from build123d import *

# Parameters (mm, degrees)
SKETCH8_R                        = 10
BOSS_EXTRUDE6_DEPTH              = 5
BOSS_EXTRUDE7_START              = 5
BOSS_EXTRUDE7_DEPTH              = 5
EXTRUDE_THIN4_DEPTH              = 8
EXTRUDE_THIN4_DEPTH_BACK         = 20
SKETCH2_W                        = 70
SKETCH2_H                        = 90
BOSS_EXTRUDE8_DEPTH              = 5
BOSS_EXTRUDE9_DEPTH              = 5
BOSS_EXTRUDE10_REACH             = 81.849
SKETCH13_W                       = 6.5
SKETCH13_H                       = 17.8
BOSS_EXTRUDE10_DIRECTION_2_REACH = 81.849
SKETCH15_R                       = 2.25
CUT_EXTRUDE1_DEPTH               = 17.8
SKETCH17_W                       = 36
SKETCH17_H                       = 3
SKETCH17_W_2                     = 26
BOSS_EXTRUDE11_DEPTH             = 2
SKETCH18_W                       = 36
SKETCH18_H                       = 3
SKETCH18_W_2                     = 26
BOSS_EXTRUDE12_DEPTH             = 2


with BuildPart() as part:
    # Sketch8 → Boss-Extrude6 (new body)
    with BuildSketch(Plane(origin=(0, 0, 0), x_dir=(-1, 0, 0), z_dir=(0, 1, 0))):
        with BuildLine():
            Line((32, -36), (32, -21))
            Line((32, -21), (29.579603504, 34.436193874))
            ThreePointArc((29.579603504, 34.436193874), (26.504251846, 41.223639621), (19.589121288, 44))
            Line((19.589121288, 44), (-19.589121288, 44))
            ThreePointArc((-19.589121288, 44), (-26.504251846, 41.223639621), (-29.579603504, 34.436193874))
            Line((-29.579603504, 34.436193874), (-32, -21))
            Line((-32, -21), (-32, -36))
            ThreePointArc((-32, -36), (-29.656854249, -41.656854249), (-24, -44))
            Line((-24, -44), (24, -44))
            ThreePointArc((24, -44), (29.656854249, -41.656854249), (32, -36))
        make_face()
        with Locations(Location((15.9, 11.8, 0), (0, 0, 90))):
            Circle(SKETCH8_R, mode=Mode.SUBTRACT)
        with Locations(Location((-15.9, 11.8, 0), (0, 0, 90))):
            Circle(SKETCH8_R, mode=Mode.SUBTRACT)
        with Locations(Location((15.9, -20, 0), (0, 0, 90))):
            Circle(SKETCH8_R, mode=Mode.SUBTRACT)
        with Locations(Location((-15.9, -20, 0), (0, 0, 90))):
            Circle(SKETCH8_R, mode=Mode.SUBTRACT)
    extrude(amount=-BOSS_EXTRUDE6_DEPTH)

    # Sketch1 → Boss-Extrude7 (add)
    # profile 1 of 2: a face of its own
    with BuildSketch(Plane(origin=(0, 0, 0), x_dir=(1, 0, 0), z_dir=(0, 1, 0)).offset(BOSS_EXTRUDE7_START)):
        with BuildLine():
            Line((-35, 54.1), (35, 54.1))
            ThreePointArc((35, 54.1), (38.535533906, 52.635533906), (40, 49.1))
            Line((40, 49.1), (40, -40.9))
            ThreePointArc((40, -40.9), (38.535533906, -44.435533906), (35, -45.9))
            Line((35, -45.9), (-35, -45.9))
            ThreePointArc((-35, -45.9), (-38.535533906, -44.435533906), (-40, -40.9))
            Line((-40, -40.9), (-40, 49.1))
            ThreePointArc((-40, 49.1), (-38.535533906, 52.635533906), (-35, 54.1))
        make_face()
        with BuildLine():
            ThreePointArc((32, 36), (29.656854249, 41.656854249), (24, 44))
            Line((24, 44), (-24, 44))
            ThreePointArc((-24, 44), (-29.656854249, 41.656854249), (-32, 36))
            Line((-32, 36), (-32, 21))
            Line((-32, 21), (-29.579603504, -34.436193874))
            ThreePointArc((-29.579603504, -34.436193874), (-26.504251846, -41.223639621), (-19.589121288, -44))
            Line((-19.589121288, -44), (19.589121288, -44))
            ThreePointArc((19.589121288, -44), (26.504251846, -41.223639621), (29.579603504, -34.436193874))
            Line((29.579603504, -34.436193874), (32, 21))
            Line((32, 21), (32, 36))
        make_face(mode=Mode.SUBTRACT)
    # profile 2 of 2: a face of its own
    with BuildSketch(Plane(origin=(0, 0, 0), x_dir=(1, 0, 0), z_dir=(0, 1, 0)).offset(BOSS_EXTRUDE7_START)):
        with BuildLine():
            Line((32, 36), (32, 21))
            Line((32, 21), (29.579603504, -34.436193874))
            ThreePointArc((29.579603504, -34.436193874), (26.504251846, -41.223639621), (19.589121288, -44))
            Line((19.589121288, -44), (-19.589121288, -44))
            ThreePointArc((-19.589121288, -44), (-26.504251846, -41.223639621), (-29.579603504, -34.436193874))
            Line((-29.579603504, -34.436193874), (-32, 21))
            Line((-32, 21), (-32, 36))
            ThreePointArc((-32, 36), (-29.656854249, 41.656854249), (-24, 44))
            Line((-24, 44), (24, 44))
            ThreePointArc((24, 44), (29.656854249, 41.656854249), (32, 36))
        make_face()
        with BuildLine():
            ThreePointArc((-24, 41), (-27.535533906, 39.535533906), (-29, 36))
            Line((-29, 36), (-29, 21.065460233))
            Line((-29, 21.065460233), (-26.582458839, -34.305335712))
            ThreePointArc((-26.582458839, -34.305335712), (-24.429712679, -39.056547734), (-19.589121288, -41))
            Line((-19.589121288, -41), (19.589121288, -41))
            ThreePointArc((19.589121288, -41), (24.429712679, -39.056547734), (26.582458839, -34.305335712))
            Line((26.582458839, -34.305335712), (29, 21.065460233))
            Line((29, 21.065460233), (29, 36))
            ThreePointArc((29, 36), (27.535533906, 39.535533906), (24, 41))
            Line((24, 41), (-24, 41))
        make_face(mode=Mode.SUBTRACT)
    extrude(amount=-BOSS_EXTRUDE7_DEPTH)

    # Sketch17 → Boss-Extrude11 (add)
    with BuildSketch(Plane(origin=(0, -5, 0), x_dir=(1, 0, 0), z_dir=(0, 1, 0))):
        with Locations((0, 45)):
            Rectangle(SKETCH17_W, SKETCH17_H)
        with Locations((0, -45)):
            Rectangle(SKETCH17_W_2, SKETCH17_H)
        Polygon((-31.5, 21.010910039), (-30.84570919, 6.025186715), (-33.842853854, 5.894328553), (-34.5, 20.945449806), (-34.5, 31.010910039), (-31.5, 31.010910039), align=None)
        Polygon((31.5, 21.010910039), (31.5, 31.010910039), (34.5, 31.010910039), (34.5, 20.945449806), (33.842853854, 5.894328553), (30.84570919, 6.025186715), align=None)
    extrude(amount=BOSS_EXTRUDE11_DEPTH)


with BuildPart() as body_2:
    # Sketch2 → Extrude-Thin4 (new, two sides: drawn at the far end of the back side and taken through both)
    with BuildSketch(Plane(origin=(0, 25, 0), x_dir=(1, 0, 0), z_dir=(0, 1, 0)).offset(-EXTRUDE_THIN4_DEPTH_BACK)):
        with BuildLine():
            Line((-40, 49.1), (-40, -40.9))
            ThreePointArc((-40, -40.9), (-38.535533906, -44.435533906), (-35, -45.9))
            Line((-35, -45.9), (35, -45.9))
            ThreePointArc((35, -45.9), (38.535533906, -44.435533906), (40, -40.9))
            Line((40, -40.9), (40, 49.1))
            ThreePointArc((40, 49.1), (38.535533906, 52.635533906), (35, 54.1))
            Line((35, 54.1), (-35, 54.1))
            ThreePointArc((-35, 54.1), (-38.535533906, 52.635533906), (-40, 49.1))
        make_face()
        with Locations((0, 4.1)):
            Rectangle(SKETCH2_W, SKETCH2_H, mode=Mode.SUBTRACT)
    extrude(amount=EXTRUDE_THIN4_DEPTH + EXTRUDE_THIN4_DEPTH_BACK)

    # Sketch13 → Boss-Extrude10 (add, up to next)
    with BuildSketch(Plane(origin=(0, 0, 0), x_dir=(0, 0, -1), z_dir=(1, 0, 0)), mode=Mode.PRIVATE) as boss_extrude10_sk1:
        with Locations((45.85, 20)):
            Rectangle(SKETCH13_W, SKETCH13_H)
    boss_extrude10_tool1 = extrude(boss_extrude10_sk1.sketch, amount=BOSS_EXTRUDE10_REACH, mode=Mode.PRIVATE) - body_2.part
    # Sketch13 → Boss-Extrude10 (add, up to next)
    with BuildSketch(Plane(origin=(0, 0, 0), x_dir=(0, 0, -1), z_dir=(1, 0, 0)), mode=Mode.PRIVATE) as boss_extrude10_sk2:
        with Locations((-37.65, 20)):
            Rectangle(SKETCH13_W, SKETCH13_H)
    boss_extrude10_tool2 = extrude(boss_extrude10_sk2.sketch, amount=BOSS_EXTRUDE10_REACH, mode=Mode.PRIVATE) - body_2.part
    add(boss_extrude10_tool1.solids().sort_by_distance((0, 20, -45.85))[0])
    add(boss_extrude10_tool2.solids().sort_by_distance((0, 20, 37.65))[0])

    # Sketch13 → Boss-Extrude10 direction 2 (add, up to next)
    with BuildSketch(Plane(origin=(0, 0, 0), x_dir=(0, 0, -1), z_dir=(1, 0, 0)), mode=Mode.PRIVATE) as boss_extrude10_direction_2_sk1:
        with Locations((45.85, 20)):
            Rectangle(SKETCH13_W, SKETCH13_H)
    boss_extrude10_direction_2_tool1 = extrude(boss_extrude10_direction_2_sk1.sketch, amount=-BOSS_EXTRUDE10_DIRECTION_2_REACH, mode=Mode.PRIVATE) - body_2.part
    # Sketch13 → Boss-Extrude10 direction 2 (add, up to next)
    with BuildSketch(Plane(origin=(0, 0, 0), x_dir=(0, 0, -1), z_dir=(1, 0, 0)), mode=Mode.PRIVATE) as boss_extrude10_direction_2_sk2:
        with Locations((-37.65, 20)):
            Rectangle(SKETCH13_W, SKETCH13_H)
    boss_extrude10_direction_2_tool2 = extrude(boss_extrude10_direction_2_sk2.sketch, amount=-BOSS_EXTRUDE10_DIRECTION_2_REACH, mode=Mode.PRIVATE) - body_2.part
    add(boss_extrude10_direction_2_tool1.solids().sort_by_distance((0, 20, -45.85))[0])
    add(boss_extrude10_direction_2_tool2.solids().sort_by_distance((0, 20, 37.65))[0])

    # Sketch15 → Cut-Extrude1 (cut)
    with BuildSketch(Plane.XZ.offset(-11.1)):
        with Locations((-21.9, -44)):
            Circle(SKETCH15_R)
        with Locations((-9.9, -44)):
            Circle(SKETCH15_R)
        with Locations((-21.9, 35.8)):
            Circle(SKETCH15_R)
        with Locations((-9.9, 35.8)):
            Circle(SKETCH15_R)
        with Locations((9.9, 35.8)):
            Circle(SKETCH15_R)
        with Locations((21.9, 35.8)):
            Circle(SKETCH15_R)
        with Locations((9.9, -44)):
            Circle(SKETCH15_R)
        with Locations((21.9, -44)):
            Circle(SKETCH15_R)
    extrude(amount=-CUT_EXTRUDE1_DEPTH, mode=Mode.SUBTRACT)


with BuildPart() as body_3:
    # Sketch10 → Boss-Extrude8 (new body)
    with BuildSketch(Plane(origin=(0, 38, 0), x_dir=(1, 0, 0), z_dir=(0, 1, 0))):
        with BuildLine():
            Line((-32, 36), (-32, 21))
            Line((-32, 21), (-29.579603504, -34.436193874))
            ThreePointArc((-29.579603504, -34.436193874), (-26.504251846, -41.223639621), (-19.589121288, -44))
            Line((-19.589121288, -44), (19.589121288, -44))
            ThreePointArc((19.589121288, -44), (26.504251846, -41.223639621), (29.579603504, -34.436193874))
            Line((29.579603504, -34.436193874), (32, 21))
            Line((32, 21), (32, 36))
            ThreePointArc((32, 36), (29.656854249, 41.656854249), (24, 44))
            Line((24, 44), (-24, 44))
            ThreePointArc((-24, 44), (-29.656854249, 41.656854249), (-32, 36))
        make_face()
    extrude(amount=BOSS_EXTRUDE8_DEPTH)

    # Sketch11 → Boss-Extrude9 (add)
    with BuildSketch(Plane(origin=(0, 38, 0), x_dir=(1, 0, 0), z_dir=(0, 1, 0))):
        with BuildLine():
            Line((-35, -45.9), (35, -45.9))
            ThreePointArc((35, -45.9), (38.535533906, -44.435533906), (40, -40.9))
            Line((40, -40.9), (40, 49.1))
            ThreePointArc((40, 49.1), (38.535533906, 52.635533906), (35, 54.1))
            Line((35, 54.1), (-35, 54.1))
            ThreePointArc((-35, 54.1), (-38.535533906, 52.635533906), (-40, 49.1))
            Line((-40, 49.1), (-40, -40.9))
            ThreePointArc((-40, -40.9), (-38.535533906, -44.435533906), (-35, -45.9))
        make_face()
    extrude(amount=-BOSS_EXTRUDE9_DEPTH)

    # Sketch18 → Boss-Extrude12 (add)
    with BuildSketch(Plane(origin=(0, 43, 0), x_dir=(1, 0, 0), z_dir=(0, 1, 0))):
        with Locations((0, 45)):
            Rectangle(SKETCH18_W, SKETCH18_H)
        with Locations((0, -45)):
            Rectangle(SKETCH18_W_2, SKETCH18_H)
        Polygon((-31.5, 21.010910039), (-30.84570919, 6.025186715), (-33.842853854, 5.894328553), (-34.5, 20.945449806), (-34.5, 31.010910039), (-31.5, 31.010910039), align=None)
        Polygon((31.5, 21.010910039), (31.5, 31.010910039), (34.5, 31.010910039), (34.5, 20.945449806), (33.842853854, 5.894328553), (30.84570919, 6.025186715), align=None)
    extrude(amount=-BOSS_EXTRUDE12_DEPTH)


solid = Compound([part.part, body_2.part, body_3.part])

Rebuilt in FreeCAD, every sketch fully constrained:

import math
import FreeCAD as App
import Part
import Sketcher

V = App.Vector
Q = App.Units.Quantity

doc = App.newDocument("Part")
params = doc.addObject("Spreadsheet::Sheet", "Params")
for row, (alias, value) in enumerate([
    ("sketch1_diameter", "20 mm"),
    ("sketch1_radius", "8 mm"),
    ("sketch1_width", "48 mm"),
    ("sketch1_height", "15 mm"),
    ("pad1_length", "5 mm"),
    ("sketch2_radius", "5 mm"),
    ("sketch2_radius2", "7 mm"),
    ("sketch2_width", "70 mm"),
    ("sketch2_width2", "48 mm"),
    ("sketch2_height", "90 mm"),
    ("pad2_length", "5 mm"),
    ("sketch3_width", "36 mm"),
    ("sketch3_width2", "26 mm"),
    ("sketch3_width3", "3 mm"),
    ("sketch3_height", "10 mm"),
    ("sketch3_length", "15 mm"),
    ("pad3_length", "2 mm"),
    ("sketch4_radius", "5 mm"),
    ("sketch4_width", "70 mm"),
    ("sketch4_height", "90 mm"),
    ("pad4_length", "8 mm"),
    ("pad4_length2", "20 mm"),
    ("sketch5_width", "17.8 mm"),
    ("sketch5_height", "6.5 mm"),
    ("sketch6_width", "17.8 mm"),
    ("sketch6_height", "6.5 mm"),
    ("sketch7_width", "17.8 mm"),
    ("sketch7_height", "6.5 mm"),
    ("sketch8_width", "17.8 mm"),
    ("sketch8_height", "6.5 mm"),
    ("sketch9_diameter", "4.5 mm"),
    ("pocket1_length", "17.8 mm"),
    ("sketch10_radius", "10 mm"),
    ("sketch10_radius2", "8 mm"),
    ("sketch10_width", "48 mm"),
    ("sketch10_height", "15 mm"),
    ("pad9_length", "5 mm"),
    ("sketch11_radius", "5 mm"),
    ("sketch11_width", "70 mm"),
    ("sketch11_height", "90 mm"),
    ("pad10_length", "5 mm"),
    ("sketch12_width", "36 mm"),
    ("sketch12_width2", "26 mm"),
    ("sketch12_width3", "3 mm"),
    ("sketch12_height", "10 mm"),
    ("sketch12_length", "15 mm"),
    ("pad11_length", "2 mm"),
], start=1):
    params.set(f"A{row}", alias)
    params.set(f"B{row}", "=" + value)
    params.setAlias(f"B{row}", alias)

body = doc.addObject("PartDesign::Body", "Body")

# Sketch on XZ plane
sketch1 = doc.addObject("Sketcher::SketchObject", "Sketch")
body.addObject(sketch1)
sketch1.AttachmentSupport = (doc.XZ_Plane, [""])
sketch1.MapMode = "FlatFace"
sketch1.addGeometry([
    Part.LineSegment(V(-32, -36, 0), V(-32, -21, 0)),  # 0
    Part.LineSegment(V(-32, -21, 0), V(-30, 34, 0)),  # 1
    Part.ArcOfCircle(Part.Circle(V(-20, 34, 0), V(0, 0, 1), 10), math.radians(90), math.radians(178)),  # 2
    Part.LineSegment(V(-20, 44, 0), V(20, 44, 0)),  # 3
    Part.ArcOfCircle(Part.Circle(V(20, 34, 0), V(0, 0, 1), 10), math.radians(2), math.radians(90)),  # 4
    Part.LineSegment(V(30, 34, 0), V(32, -21, 0)),  # 5
    Part.LineSegment(V(32, -21, 0), V(32, -36, 0)),  # 6
    Part.ArcOfCircle(Part.Circle(V(24, -36, 0), V(0, 0, 1), 8), math.radians(-90), math.radians(0)),  # 7
    Part.LineSegment(V(24, -44, 0), V(-24, -44, 0)),  # 8
    Part.ArcOfCircle(Part.Circle(V(-24, -36, 0), V(0, 0, 1), 8), math.radians(-180), math.radians(-90)),  # 9
    Part.Circle(V(16, -20, 0), V(0, 0, 1), 10),  # 10
    Part.Circle(V(-16, -20, 0), V(0, 0, 1), 10),  # 11
    Part.Circle(V(16, 12, 0), V(0, 0, 1), 10),  # 12
    Part.Circle(V(-16, 12, 0), V(0, 0, 1), 10),  # 13
], False)
sketch1.addConstraint([
    Sketcher.Constraint("Coincident", 0, 2, 1, 1),
    Sketcher.Constraint("Tangent", 1, 2, 2, 2),
    Sketcher.Constraint("Tangent", 2, 1, 3, 1),
    Sketcher.Constraint("Tangent", 3, 2, 4, 2),
    Sketcher.Constraint("Tangent", 4, 1, 5, 1),
    Sketcher.Constraint("Coincident", 5, 2, 6, 1),
    Sketcher.Constraint("Tangent", 6, 2, 7, 2),
    Sketcher.Constraint("Tangent", 7, 1, 8, 1),
    Sketcher.Constraint("Tangent", 8, 2, 9, 2),
    Sketcher.Constraint("Tangent", 9, 1, 0, 1),
    Sketcher.Constraint("Vertical", 0),
    Sketcher.Constraint("Horizontal", 3),
    Sketcher.Constraint("Vertical", 6),
    Sketcher.Constraint("Horizontal", 8),
    Sketcher.Constraint("Equal", 2, 4),
    Sketcher.Constraint("Equal", 7, 9),
    Sketcher.Constraint("Equal", 4, 10),
    Sketcher.Constraint("Equal", 10, 11),
    Sketcher.Constraint("Equal", 11, 12),
    Sketcher.Constraint("Equal", 12, 13),
    Sketcher.Constraint("Symmetric", 10, 3, 11, 3, -2),
    Sketcher.Constraint("Symmetric", 12, 3, 13, 3, -2),
    Sketcher.Constraint("Symmetric", 1, 2, 4, 1, -2),
    Sketcher.Constraint("Horizontal", 0, 2, 5, 2),
    Sketcher.Constraint("Vertical", 10, 3, 12, 3),
    Sketcher.Constraint("Diameter", 10, 20.0),
    Sketcher.Constraint("Radius", 7, 8.0),
    Sketcher.Constraint("DistanceX", 8, 2, 8, 1, 48.0),
    Sketcher.Constraint("DistanceY", 0, 1, 0, 2, 15.0),
    Sketcher.Constraint("DistanceY", -1, 1, 2, 3, 34.0),
    Sketcher.Constraint("DistanceY", 7, 3, -1, 1, 36.0),
    Sketcher.Constraint("DistanceY", 10, 3, -1, 1, 20.0),
    Sketcher.Constraint("Angle", 1, Q("87.5 deg")),
    Sketcher.Constraint("DistanceX", -1, 1, 10, 3, 15.9),
    Sketcher.Constraint("DistanceY", -1, 1, 12, 3, 11.8),
])
sketch1.setExpression("Constraints[25]", "Params.sketch1_diameter")
sketch1.setExpression("Constraints[26]", "Params.sketch1_radius")
sketch1.setExpression("Constraints[27]", "Params.sketch1_width")
sketch1.setExpression("Constraints[28]", "Params.sketch1_height")
pad1 = doc.addObject("PartDesign::Pad", "Pad")
body.addObject(pad1)
pad1.Profile = sketch1
pad1.setExpression("Length", "Params.pad1_length")

# Sketch on XZ plane
sketch2 = doc.addObject("Sketcher::SketchObject", "Sketch001")
body.addObject(sketch2)
sketch2.AttachmentSupport = (doc.XZ_Plane, [""])
sketch2.MapMode = "FlatFace"
sketch2.AttachmentOffset = App.Placement(V(0, 0, -5), App.Rotation())
sketch2.addGeometry([
    Part.LineSegment(V(35, -54, 0), V(-35, -54, 0)),  # 0
    Part.ArcOfCircle(Part.Circle(V(-35, -49, 0), V(0, 0, 1), 5), math.radians(180), math.radians(270)),  # 1
    Part.LineSegment(V(-40, -49, 0), V(-40, 41, 0)),  # 2
    Part.ArcOfCircle(Part.Circle(V(-35, 41, 0), V(0, 0, 1), 5), math.radians(90), math.radians(180)),  # 3
    Part.LineSegment(V(-35, 46, 0), V(35, 46, 0)),  # 4
    Part.ArcOfCircle(Part.Circle(V(35, 41, 0), V(0, 0, 1), 5), math.radians(0), math.radians(90)),  # 5
    Part.LineSegment(V(40, 41, 0), V(40, -49, 0)),  # 6
    Part.ArcOfCircle(Part.Circle(V(35, -49, 0), V(0, 0, 1), 5), math.radians(-90), math.radians(0)),  # 7
    Part.ArcOfCircle(Part.Circle(V(-24, -36, 0), V(0, 0, 1), 5), math.radians(180), math.radians(270)),  # 8
    Part.LineSegment(V(-24, -41, 0), V(24, -41, 0)),  # 9
    Part.ArcOfCircle(Part.Circle(V(24, -36, 0), V(0, 0, 1), 5), math.radians(-90), math.radians(0)),  # 10
    Part.LineSegment(V(29, -36, 0), V(29, -21, 0)),  # 11
    Part.LineSegment(V(29, -21, 0), V(27, 34, 0)),  # 12
    Part.ArcOfCircle(Part.Circle(V(20, 34, 0), V(0, 0, 1), 7), math.radians(3), math.radians(90)),  # 13
    Part.LineSegment(V(20, 41, 0), V(-20, 41, 0)),  # 14
    Part.ArcOfCircle(Part.Circle(V(-20, 34, 0), V(0, 0, 1), 7), math.radians(90), math.radians(177)),  # 15
    Part.LineSegment(V(-27, 34, 0), V(-29, -21, 0)),  # 16
    Part.LineSegment(V(-29, -21, 0), V(-29, -36, 0)),  # 17
], False)
sketch2.addConstraint([
    Sketcher.Constraint("Tangent", 0, 2, 1, 2),
    Sketcher.Constraint("Tangent", 1, 1, 2, 1),
    Sketcher.Constraint("Tangent", 2, 2, 3, 2),
    Sketcher.Constraint("Tangent", 3, 1, 4, 1),
    Sketcher.Constraint("Tangent", 4, 2, 5, 2),
    Sketcher.Constraint("Tangent", 5, 1, 6, 1),
    Sketcher.Constraint("Tangent", 6, 2, 7, 2),
    Sketcher.Constraint("Tangent", 7, 1, 0, 1),
    Sketcher.Constraint("Tangent", 8, 2, 9, 1),
    Sketcher.Constraint("Tangent", 9, 2, 10, 1),
    Sketcher.Constraint("Tangent", 10, 2, 11, 1),
    Sketcher.Constraint("Coincident", 11, 2, 12, 1),
    Sketcher.Constraint("Tangent", 12, 2, 13, 1),
    Sketcher.Constraint("Tangent", 13, 2, 14, 1),
    Sketcher.Constraint("Tangent", 14, 2, 15, 1),
    Sketcher.Constraint("Tangent", 15, 2, 16, 1),
    Sketcher.Constraint("Coincident", 16, 2, 17, 1),
    Sketcher.Constraint("Tangent", 17, 2, 8, 1),
    Sketcher.Constraint("Horizontal", 0),
    Sketcher.Constraint("Vertical", 2),
    Sketcher.Constraint("Horizontal", 4),
    Sketcher.Constraint("Vertical", 6),
    Sketcher.Constraint("Horizontal", 9),
    Sketcher.Constraint("Vertical", 11),
    Sketcher.Constraint("Horizontal", 14),
    Sketcher.Constraint("Vertical", 17),
    Sketcher.Constraint("Equal", 1, 3),
    Sketcher.Constraint("Equal", 3, 5),
    Sketcher.Constraint("Equal", 5, 7),
    Sketcher.Constraint("Equal", 7, 8),
    Sketcher.Constraint("Equal", 8, 10),
    Sketcher.Constraint("Equal", 13, 15),
    Sketcher.Constraint("Symmetric", 12, 2, 15, 2, -2),
    Sketcher.Constraint("Horizontal", 11, 2, 16, 2),
    Sketcher.Constraint("Radius", 1, 5.0),
    Sketcher.Constraint("Radius", 13, 7.0),
    Sketcher.Constraint("DistanceX", 0, 2, 0, 1, 70.0),
    Sketcher.Constraint("DistanceX", 9, 1, 9, 2, 48.0),
    Sketcher.Constraint("DistanceY", 2, 1, 2, 2, 90.0),
    Sketcher.Constraint("DistanceX", 1, 3, -1, 1, 35.0),
    Sketcher.Constraint("DistanceY", 8, 3, -1, 1, 36.0),
    Sketcher.Constraint("DistanceY", -1, 1, 13, 3, 34.0),
    Sketcher.Constraint("Angle", 12, Q("92.5 deg")),
    Sketcher.Constraint("DistanceY", 1, 3, -1, 1, 49.1),
    Sketcher.Constraint("DistanceY", 11, 1, 11, 2, 14.93454),
])
sketch2.setExpression("Constraints[34]", "Params.sketch2_radius")
sketch2.setExpression("Constraints[35]", "Params.sketch2_radius2")
sketch2.setExpression("Constraints[36]", "Params.sketch2_width")
sketch2.setExpression("Constraints[37]", "Params.sketch2_width2")
sketch2.setExpression("Constraints[38]", "Params.sketch2_height")
pad2 = doc.addObject("PartDesign::Pad", "Pad001")
body.addObject(pad2)
pad2.Profile = sketch2
pad2.setExpression("Length", "Params.pad2_length")

# Sketch on XZ plane
sketch3 = doc.addObject("Sketcher::SketchObject", "Sketch002")
body.addObject(sketch3)
sketch3.AttachmentSupport = (doc.XZ_Plane, [""])
sketch3.MapMode = "FlatFace"
sketch3.AttachmentOffset = App.Placement(V(0, 0, 5), App.Rotation())
sketch3.addGeometry([
    Part.LineSegment(V(-18, -46.5, 0), V(-18, -43.5, 0)),  # 0
    Part.LineSegment(V(-18, -43.5, 0), V(18, -43.5, 0)),  # 1
    Part.LineSegment(V(18, -43.5, 0), V(18, -46.5, 0)),  # 2
    Part.LineSegment(V(18, -46.5, 0), V(-18, -46.5, 0)),  # 3
    Part.LineSegment(V(-13, 43.5, 0), V(-13, 46.5, 0)),  # 4
    Part.LineSegment(V(-13, 46.5, 0), V(13, 46.5, 0)),  # 5
    Part.LineSegment(V(13, 46.5, 0), V(13, 43.5, 0)),  # 6
    Part.LineSegment(V(13, 43.5, 0), V(-13, 43.5, 0)),  # 7
    Part.LineSegment(V(-30.8, -6, 0), V(-31.5, -21, 0)),  # 8
    Part.LineSegment(V(-31.5, -21, 0), V(-31.5, -31, 0)),  # 9
    Part.LineSegment(V(-31.5, -31, 0), V(-34.5, -31, 0)),  # 10
    Part.LineSegment(V(-34.5, -31, 0), V(-34.5, -20.9, 0)),  # 11
    Part.LineSegment(V(-34.5, -20.9, 0), V(-33.8, -5.9, 0)),  # 12
    Part.LineSegment(V(-33.8, -5.9, 0), V(-30.8, -6, 0)),  # 13
    Part.LineSegment(V(31.5, -31, 0), V(31.5, -21, 0)),  # 14
    Part.LineSegment(V(31.5, -21, 0), V(30.8, -6, 0)),  # 15
    Part.LineSegment(V(30.8, -6, 0), V(33.8, -5.9, 0)),  # 16
    Part.LineSegment(V(33.8, -5.9, 0), V(34.5, -20.9, 0)),  # 17
    Part.LineSegment(V(34.5, -20.9, 0), V(34.5, -31, 0)),  # 18
    Part.LineSegment(V(34.5, -31, 0), V(31.5, -31, 0)),  # 19
], False)
sketch3.addConstraint([
    Sketcher.Constraint("Coincident", 0, 2, 1, 1),
    Sketcher.Constraint("Coincident", 1, 2, 2, 1),
    Sketcher.Constraint("Coincident", 2, 2, 3, 1),
    Sketcher.Constraint("Coincident", 3, 2, 0, 1),
    Sketcher.Constraint("Coincident", 4, 2, 5, 1),
    Sketcher.Constraint("Coincident", 5, 2, 6, 1),
    Sketcher.Constraint("Coincident", 6, 2, 7, 1),
    Sketcher.Constraint("Coincident", 7, 2, 4, 1),
    Sketcher.Constraint("Coincident", 8, 2, 9, 1),
    Sketcher.Constraint("Coincident", 9, 2, 10, 1),
    Sketcher.Constraint("Coincident", 10, 2, 11, 1),
    Sketcher.Constraint("Coincident", 11, 2, 12, 1),
    Sketcher.Constraint("Coincident", 12, 2, 13, 1),
    Sketcher.Constraint("Coincident", 13, 2, 8, 1),
    Sketcher.Constraint("Coincident", 14, 2, 15, 1),
    Sketcher.Constraint("Coincident", 15, 2, 16, 1),
    Sketcher.Constraint("Coincident", 16, 2, 17, 1),
    Sketcher.Constraint("Coincident", 17, 2, 18, 1),
    Sketcher.Constraint("Coincident", 18, 2, 19, 1),
    Sketcher.Constraint("Coincident", 19, 2, 14, 1),
    Sketcher.Constraint("Vertical", 0),
    Sketcher.Constraint("Horizontal", 1),
    Sketcher.Constraint("Vertical", 2),
    Sketcher.Constraint("Horizontal", 3),
    Sketcher.Constraint("Vertical", 4),
    Sketcher.Constraint("Horizontal", 5),
    Sketcher.Constraint("Vertical", 6),
    Sketcher.Constraint("Horizontal", 7),
    Sketcher.Constraint("Vertical", 9),
    Sketcher.Constraint("Horizontal", 10),
    Sketcher.Constraint("Vertical", 11),
    Sketcher.Constraint("Vertical", 14),
    Sketcher.Constraint("Vertical", 18),
    Sketcher.Constraint("Horizontal", 19),
    Sketcher.Constraint("Symmetric", 8, 2, 14, 2, -2),
    Sketcher.Constraint("Symmetric", 13, 2, 15, 2, -2),
    Sketcher.Constraint("Symmetric", 12, 2, 16, 2, -2),
    Sketcher.Constraint("Symmetric", 11, 2, 17, 2, -2),
    Sketcher.Constraint("Parallel", 8, 12),
    Sketcher.Constraint("Perpendicular", 12, 13),
    Sketcher.Constraint("Horizontal", 10, 2, 18, 2),
    Sketcher.Constraint("Equal", 19, 0),
    Sketcher.Constraint("Equal", 2, 4),
    Sketcher.Constraint("DistanceX", 1, 1, 1, 2, 36.0),
    Sketcher.Constraint("DistanceX", 5, 1, 5, 2, 26.0),
    Sketcher.Constraint("DistanceX", 10, 2, 10, 1, 3.0),
    Sketcher.Constraint("DistanceY", 9, 2, 9, 1, 10.0),
    Sketcher.Constraint("Distance", 8, 15.0),
    Sketcher.Constraint("Distance", 13, 3.0),
    Sketcher.Constraint("DistanceX", 0, 2, -1, 1, 18.0),
    Sketcher.Constraint("DistanceX", 4, 2, -1, 1, 13.0),
    Sketcher.Constraint("Angle", 8, Q("-92.5 deg")),
    Sketcher.Constraint("DistanceY", 0, 2, 4, 2, 90.0),
    Sketcher.Constraint("DistanceX", 8, 2, 14, 2, 63.0),
    Sketcher.Constraint("DistanceY", 0, 2, -1, 1, 43.5),
    Sketcher.Constraint("DistanceY", 8, 2, -1, 1, 21.01091),
])
sketch3.setExpression("Constraints[43]", "Params.sketch3_width")
sketch3.setExpression("Constraints[44]", "Params.sketch3_width2")
sketch3.setExpression("Constraints[45]", "Params.sketch3_width3")
sketch3.setExpression("Constraints[46]", "Params.sketch3_height")
sketch3.setExpression("Constraints[47]", "Params.sketch3_length")
pad3 = doc.addObject("PartDesign::Pad", "Pad002")
body.addObject(pad3)
pad3.Profile = sketch3
pad3.setExpression("Length", "Params.pad3_length")
pad3.Reversed = True
body2 = doc.addObject("PartDesign::Body", "Body001")

# Sketch on XZ plane
sketch4 = doc.addObject("Sketcher::SketchObject", "Sketch003")
body2.addObject(sketch4)
sketch4.AttachmentSupport = (doc.getObject("XZ_Plane001"), [""])
sketch4.MapMode = "FlatFace"
sketch4.AttachmentOffset = App.Placement(V(0, 0, -25), App.Rotation())
sketch4.addGeometry([
    Part.LineSegment(V(-40, -49, 0), V(-40, 41, 0)),  # 0
    Part.ArcOfCircle(Part.Circle(V(-35, 41, 0), V(0, 0, 1), 5), math.radians(90), math.radians(180)),  # 1
    Part.LineSegment(V(-35, 46, 0), V(35, 46, 0)),  # 2
    Part.ArcOfCircle(Part.Circle(V(35, 41, 0), V(0, 0, 1), 5), math.radians(0), math.radians(90)),  # 3
    Part.LineSegment(V(40, 41, 0), V(40, -49, 0)),  # 4
    Part.ArcOfCircle(Part.Circle(V(35, -49, 0), V(0, 0, 1), 5), math.radians(-90), math.radians(0)),  # 5
    Part.LineSegment(V(35, -54, 0), V(-35, -54, 0)),  # 6
    Part.ArcOfCircle(Part.Circle(V(-35, -49, 0), V(0, 0, 1), 5), math.radians(180), math.radians(270)),  # 7
    Part.LineSegment(V(35, 41, 0), V(-35, 41, 0)),  # 8
    Part.LineSegment(V(-35, 41, 0), V(-35, -49, 0)),  # 9
    Part.LineSegment(V(-35, -49, 0), V(35, -49, 0)),  # 10
    Part.LineSegment(V(35, -49, 0), V(35, 41, 0)),  # 11
], False)
sketch4.addConstraint([
    Sketcher.Constraint("Tangent", 0, 2, 1, 2),
    Sketcher.Constraint("Tangent", 1, 1, 2, 1),
    Sketcher.Constraint("Tangent", 2, 2, 3, 2),
    Sketcher.Constraint("Tangent", 3, 1, 4, 1),
    Sketcher.Constraint("Tangent", 4, 2, 5, 2),
    Sketcher.Constraint("Tangent", 5, 1, 6, 1),
    Sketcher.Constraint("Tangent", 6, 2, 7, 2),
    Sketcher.Constraint("Tangent", 7, 1, 0, 1),
    Sketcher.Constraint("Coincident", 8, 2, 9, 1),
    Sketcher.Constraint("Coincident", 9, 2, 10, 1),
    Sketcher.Constraint("Coincident", 10, 2, 11, 1),
    Sketcher.Constraint("Coincident", 11, 2, 8, 1),
    Sketcher.Constraint("Vertical", 0),
    Sketcher.Constraint("Horizontal", 2),
    Sketcher.Constraint("Vertical", 4),
    Sketcher.Constraint("Horizontal", 6),
    Sketcher.Constraint("Horizontal", 8),
    Sketcher.Constraint("Vertical", 9),
    Sketcher.Constraint("Horizontal", 10),
    Sketcher.Constraint("Vertical", 11),
    Sketcher.Constraint("Coincident", 8, 2, 1, 3),
    Sketcher.Constraint("Coincident", 9, 2, 7, 3),
    Sketcher.Constraint("Coincident", 10, 2, 5, 3),
    Sketcher.Constraint("Equal", 1, 3),
    Sketcher.Constraint("Radius", 1, 5.0),
    Sketcher.Constraint("DistanceX", 2, 1, 2, 2, 70.0),
    Sketcher.Constraint("DistanceY", 0, 1, 0, 2, 90.0),
    Sketcher.Constraint("DistanceX", 1, 3, -1, 1, 35.0),
    Sketcher.Constraint("DistanceY", -1, 1, 1, 3, 40.9),
])
sketch4.setExpression("Constraints[24]", "Params.sketch4_radius")
sketch4.setExpression("Constraints[25]", "Params.sketch4_width")
sketch4.setExpression("Constraints[26]", "Params.sketch4_height")
pad4 = doc.addObject("PartDesign::Pad", "Pad003")
body2.addObject(pad4)
pad4.Profile = sketch4
pad4.Type = "TwoLengths"
pad4.setExpression("Length", "Params.pad4_length")
pad4.setExpression("Length2", "Params.pad4_length2")
pad4.Reversed = True

# Sketch on YZ plane
sketch5 = doc.addObject("Sketcher::SketchObject", "Sketch004")
body2.addObject(sketch5)
sketch5.AttachmentSupport = (doc.getObject("YZ_Plane001"), [""])
sketch5.MapMode = "FlatFace"
sketch5.addGeometry([
    Part.LineSegment(V(29, -43, 0), V(11, -43, 0)),
    Part.LineSegment(V(11, -43, 0), V(11, -49, 0)),
    Part.LineSegment(V(11, -49, 0), V(29, -49, 0)),
    Part.LineSegment(V(29, -49, 0), V(29, -43, 0)),
], False)
sketch5.addConstraint([
    Sketcher.Constraint("Coincident", 0, 2, 1, 1),
    Sketcher.Constraint("Coincident", 1, 2, 2, 1),
    Sketcher.Constraint("Coincident", 2, 2, 3, 1),
    Sketcher.Constraint("Coincident", 3, 2, 0, 1),
    Sketcher.Constraint("Horizontal", 0),
    Sketcher.Constraint("Vertical", 1),
    Sketcher.Constraint("Horizontal", 2),
    Sketcher.Constraint("Vertical", 3),
    Sketcher.Constraint("DistanceX", 0, 2, 0, 1, 17.8),
    Sketcher.Constraint("DistanceY", 1, 2, 1, 1, 6.5),
    Sketcher.Constraint("DistanceX", -1, 1, 0, 2, 11.1),
    Sketcher.Constraint("DistanceY", 0, 2, -1, 1, 42.6),
])
sketch5.setExpression("Constraints[8]", "Params.sketch5_width")
sketch5.setExpression("Constraints[9]", "Params.sketch5_height")
pad5 = doc.addObject("PartDesign::Pad", "Pad004")
body2.addObject(pad5)
pad5.Profile = sketch5
pad5.Type = "UpToFirst"

# Sketch on YZ plane
sketch6 = doc.addObject("Sketcher::SketchObject", "Sketch005")
body2.addObject(sketch6)
sketch6.AttachmentSupport = (doc.getObject("YZ_Plane001"), [""])
sketch6.MapMode = "FlatFace"
sketch6.addGeometry([
    Part.LineSegment(V(29, 41, 0), V(11, 41, 0)),
    Part.LineSegment(V(11, 41, 0), V(11, 34, 0)),
    Part.LineSegment(V(11, 34, 0), V(29, 34, 0)),
    Part.LineSegment(V(29, 34, 0), V(29, 41, 0)),
], False)
sketch6.addConstraint([
    Sketcher.Constraint("Coincident", 0, 2, 1, 1),
    Sketcher.Constraint("Coincident", 1, 2, 2, 1),
    Sketcher.Constraint("Coincident", 2, 2, 3, 1),
    Sketcher.Constraint("Coincident", 3, 2, 0, 1),
    Sketcher.Constraint("Horizontal", 0),
    Sketcher.Constraint("Vertical", 1),
    Sketcher.Constraint("Horizontal", 2),
    Sketcher.Constraint("Vertical", 3),
    Sketcher.Constraint("DistanceX", 0, 2, 0, 1, 17.8),
    Sketcher.Constraint("DistanceY", 1, 2, 1, 1, 6.5),
    Sketcher.Constraint("DistanceX", -1, 1, 0, 2, 11.1),
    Sketcher.Constraint("DistanceY", -1, 1, 0, 2, 40.9),
])
sketch6.setExpression("Constraints[8]", "Params.sketch6_width")
sketch6.setExpression("Constraints[9]", "Params.sketch6_height")
pad6 = doc.addObject("PartDesign::Pad", "Pad005")
body2.addObject(pad6)
pad6.Profile = sketch6
pad6.Type = "UpToFirst"

# Sketch on YZ plane
sketch7 = doc.addObject("Sketcher::SketchObject", "Sketch006")
body2.addObject(sketch7)
sketch7.AttachmentSupport = (doc.getObject("YZ_Plane001"), [""])
sketch7.MapMode = "FlatFace"
sketch7.addGeometry([
    Part.LineSegment(V(29, -43, 0), V(11, -43, 0)),
    Part.LineSegment(V(11, -43, 0), V(11, -49, 0)),
    Part.LineSegment(V(11, -49, 0), V(29, -49, 0)),
    Part.LineSegment(V(29, -49, 0), V(29, -43, 0)),
], False)
sketch7.addConstraint([
    Sketcher.Constraint("Coincident", 0, 2, 1, 1),
    Sketcher.Constraint("Coincident", 1, 2, 2, 1),
    Sketcher.Constraint("Coincident", 2, 2, 3, 1),
    Sketcher.Constraint("Coincident", 3, 2, 0, 1),
    Sketcher.Constraint("Horizontal", 0),
    Sketcher.Constraint("Vertical", 1),
    Sketcher.Constraint("Horizontal", 2),
    Sketcher.Constraint("Vertical", 3),
    Sketcher.Constraint("DistanceX", 0, 2, 0, 1, 17.8),
    Sketcher.Constraint("DistanceY", 1, 2, 1, 1, 6.5),
    Sketcher.Constraint("DistanceX", -1, 1, 0, 2, 11.1),
    Sketcher.Constraint("DistanceY", 0, 2, -1, 1, 42.6),
])
sketch7.setExpression("Constraints[8]", "Params.sketch7_width")
sketch7.setExpression("Constraints[9]", "Params.sketch7_height")
pad7 = doc.addObject("PartDesign::Pad", "Pad006")
body2.addObject(pad7)
pad7.Profile = sketch7
pad7.Type = "UpToFirst"
pad7.Reversed = True

# Sketch on YZ plane
sketch8 = doc.addObject("Sketcher::SketchObject", "Sketch007")
body2.addObject(sketch8)
sketch8.AttachmentSupport = (doc.getObject("YZ_Plane001"), [""])
sketch8.MapMode = "FlatFace"
sketch8.addGeometry([
    Part.LineSegment(V(29, 41, 0), V(11, 41, 0)),
    Part.LineSegment(V(11, 41, 0), V(11, 34, 0)),
    Part.LineSegment(V(11, 34, 0), V(29, 34, 0)),
    Part.LineSegment(V(29, 34, 0), V(29, 41, 0)),
], False)
sketch8.addConstraint([
    Sketcher.Constraint("Coincident", 0, 2, 1, 1),
    Sketcher.Constraint("Coincident", 1, 2, 2, 1),
    Sketcher.Constraint("Coincident", 2, 2, 3, 1),
    Sketcher.Constraint("Coincident", 3, 2, 0, 1),
    Sketcher.Constraint("Horizontal", 0),
    Sketcher.Constraint("Vertical", 1),
    Sketcher.Constraint("Horizontal", 2),
    Sketcher.Constraint("Vertical", 3),
    Sketcher.Constraint("DistanceX", 0, 2, 0, 1, 17.8),
    Sketcher.Constraint("DistanceY", 1, 2, 1, 1, 6.5),
    Sketcher.Constraint("DistanceX", -1, 1, 0, 2, 11.1),
    Sketcher.Constraint("DistanceY", -1, 1, 0, 2, 40.9),
])
sketch8.setExpression("Constraints[8]", "Params.sketch8_width")
sketch8.setExpression("Constraints[9]", "Params.sketch8_height")
pad8 = doc.addObject("PartDesign::Pad", "Pad007")
body2.addObject(pad8)
pad8.Profile = sketch8
pad8.Type = "UpToFirst"
pad8.Reversed = True

# Sketch on XZ plane
sketch9 = doc.addObject("Sketcher::SketchObject", "Sketch008")
body2.addObject(sketch9)
sketch9.AttachmentSupport = (doc.getObject("XZ_Plane001"), [""])
sketch9.MapMode = "FlatFace"
sketch9.AttachmentOffset = App.Placement(V(0, 0, -11.1), App.Rotation())
sketch9.addGeometry([
    Part.Circle(V(-21.9, -44, 0), V(0, 0, 1), 2.2),  # 0
    Part.Circle(V(-9.9, -44, 0), V(0, 0, 1), 2.2),  # 1
    Part.Circle(V(-21.9, 35.8, 0), V(0, 0, 1), 2.2),  # 2
    Part.Circle(V(-9.9, 35.8, 0), V(0, 0, 1), 2.2),  # 3
    Part.Circle(V(9.9, 35.8, 0), V(0, 0, 1), 2.2),  # 4
    Part.Circle(V(21.9, 35.8, 0), V(0, 0, 1), 2.2),  # 5
    Part.Circle(V(9.9, -44, 0), V(0, 0, 1), 2.2),  # 6
    Part.Circle(V(21.9, -44, 0), V(0, 0, 1), 2.2),  # 7
], False)
sketch9.addConstraint([
    Sketcher.Constraint("Equal", 0, 1),
    Sketcher.Constraint("Equal", 1, 2),
    Sketcher.Constraint("Equal", 2, 3),
    Sketcher.Constraint("Equal", 3, 4),
    Sketcher.Constraint("Equal", 4, 5),
    Sketcher.Constraint("Equal", 5, 6),
    Sketcher.Constraint("Equal", 6, 7),
    Sketcher.Constraint("Symmetric", 3, 3, 4, 3, -2),
    Sketcher.Constraint("Symmetric", 2, 3, 5, 3, -2),
    Sketcher.Constraint("Symmetric", 1, 3, 6, 3, -2),
    Sketcher.Constraint("Symmetric", 0, 3, 7, 3, -2),
    Sketcher.Constraint("Horizontal", 0, 3, 1, 3),
    Sketcher.Constraint("Horizontal", 2, 3, 3, 3),
    Sketcher.Constraint("Vertical", 0, 3, 2, 3),
    Sketcher.Constraint("Vertical", 1, 3, 3, 3),
    Sketcher.Constraint("Diameter", 0, 4.5),
    Sketcher.Constraint("DistanceY", 0, 3, -1, 1, 44.0),
    Sketcher.Constraint("DistanceX", 0, 3, 1, 3, 12.0),
    Sketcher.Constraint("DistanceX", 0, 3, -1, 1, 21.9),
    Sketcher.Constraint("DistanceY", -1, 1, 2, 3, 35.8),
])
sketch9.setExpression("Constraints[15]", "Params.sketch9_diameter")
pocket1 = doc.addObject("PartDesign::Pocket", "Pocket")
body2.addObject(pocket1)
pocket1.Profile = sketch9
pocket1.setExpression("Length", "Params.pocket1_length")
body3 = doc.addObject("PartDesign::Body", "Body002")

# Sketch on XZ plane
sketch10 = doc.addObject("Sketcher::SketchObject", "Sketch009")
body3.addObject(sketch10)
sketch10.AttachmentSupport = (doc.getObject("XZ_Plane002"), [""])
sketch10.MapMode = "FlatFace"
sketch10.AttachmentOffset = App.Placement(V(0, 0, -38), App.Rotation())
sketch10.addGeometry([
    Part.LineSegment(V(-32, -36, 0), V(-32, -21, 0)),  # 0
    Part.LineSegment(V(-32, -21, 0), V(-30, 34, 0)),  # 1
    Part.ArcOfCircle(Part.Circle(V(-20, 34, 0), V(0, 0, 1), 10), math.radians(90), math.radians(178)),  # 2
    Part.LineSegment(V(-20, 44, 0), V(20, 44, 0)),  # 3
    Part.ArcOfCircle(Part.Circle(V(20, 34, 0), V(0, 0, 1), 10), math.radians(2), math.radians(90)),  # 4
    Part.LineSegment(V(30, 34, 0), V(32, -21, 0)),  # 5
    Part.LineSegment(V(32, -21, 0), V(32, -36, 0)),  # 6
    Part.ArcOfCircle(Part.Circle(V(24, -36, 0), V(0, 0, 1), 8), math.radians(-90), math.radians(0)),  # 7
    Part.LineSegment(V(24, -44, 0), V(-24, -44, 0)),  # 8
    Part.ArcOfCircle(Part.Circle(V(-24, -36, 0), V(0, 0, 1), 8), math.radians(-180), math.radians(-90)),  # 9
], False)
sketch10.addConstraint([
    Sketcher.Constraint("Coincident", 0, 2, 1, 1),
    Sketcher.Constraint("Tangent", 1, 2, 2, 2),
    Sketcher.Constraint("Tangent", 2, 1, 3, 1),
    Sketcher.Constraint("Tangent", 3, 2, 4, 2),
    Sketcher.Constraint("Tangent", 4, 1, 5, 1),
    Sketcher.Constraint("Coincident", 5, 2, 6, 1),
    Sketcher.Constraint("Tangent", 6, 2, 7, 2),
    Sketcher.Constraint("Tangent", 7, 1, 8, 1),
    Sketcher.Constraint("Tangent", 8, 2, 9, 2),
    Sketcher.Constraint("Tangent", 9, 1, 0, 1),
    Sketcher.Constraint("Vertical", 0),
    Sketcher.Constraint("Horizontal", 3),
    Sketcher.Constraint("Vertical", 6),
    Sketcher.Constraint("Horizontal", 8),
    Sketcher.Constraint("Equal", 2, 4),
    Sketcher.Constraint("Equal", 7, 9),
    Sketcher.Constraint("Symmetric", 1, 2, 4, 1, -2),
    Sketcher.Constraint("Horizontal", 0, 2, 5, 2),
    Sketcher.Constraint("Radius", 2, 10.0),
    Sketcher.Constraint("Radius", 7, 8.0),
    Sketcher.Constraint("DistanceX", 8, 2, 8, 1, 48.0),
    Sketcher.Constraint("DistanceY", 0, 1, 0, 2, 15.0),
    Sketcher.Constraint("DistanceY", -1, 1, 2, 3, 34.0),
    Sketcher.Constraint("DistanceY", 7, 3, -1, 1, 36.0),
    Sketcher.Constraint("Angle", 1, Q("87.5 deg")),
])
sketch10.setExpression("Constraints[18]", "Params.sketch10_radius")
sketch10.setExpression("Constraints[19]", "Params.sketch10_radius2")
sketch10.setExpression("Constraints[20]", "Params.sketch10_width")
sketch10.setExpression("Constraints[21]", "Params.sketch10_height")
pad9 = doc.addObject("PartDesign::Pad", "Pad008")
body3.addObject(pad9)
pad9.Profile = sketch10
pad9.setExpression("Length", "Params.pad9_length")
pad9.Reversed = True

# Sketch on XZ plane
sketch11 = doc.addObject("Sketcher::SketchObject", "Sketch010")
body3.addObject(sketch11)
sketch11.AttachmentSupport = (doc.getObject("XZ_Plane002"), [""])
sketch11.MapMode = "FlatFace"
sketch11.AttachmentOffset = App.Placement(V(0, 0, -38), App.Rotation())
sketch11.addGeometry([
    Part.LineSegment(V(-35, 46, 0), V(35, 46, 0)),  # 0
    Part.ArcOfCircle(Part.Circle(V(35, 41, 0), V(0, 0, 1), 5), math.radians(0), math.radians(90)),  # 1
    Part.LineSegment(V(40, 41, 0), V(40, -49, 0)),  # 2
    Part.ArcOfCircle(Part.Circle(V(35, -49, 0), V(0, 0, 1), 5), math.radians(-90), math.radians(0)),  # 3
    Part.LineSegment(V(35, -54, 0), V(-35, -54, 0)),  # 4
    Part.ArcOfCircle(Part.Circle(V(-35, -49, 0), V(0, 0, 1), 5), math.radians(180), math.radians(270)),  # 5
    Part.LineSegment(V(-40, -49, 0), V(-40, 41, 0)),  # 6
    Part.ArcOfCircle(Part.Circle(V(-35, 41, 0), V(0, 0, 1), 5), math.radians(90), math.radians(180)),  # 7
], False)
sketch11.addConstraint([
    Sketcher.Constraint("Tangent", 0, 2, 1, 2),
    Sketcher.Constraint("Tangent", 1, 1, 2, 1),
    Sketcher.Constraint("Tangent", 2, 2, 3, 2),
    Sketcher.Constraint("Tangent", 3, 1, 4, 1),
    Sketcher.Constraint("Tangent", 4, 2, 5, 2),
    Sketcher.Constraint("Tangent", 5, 1, 6, 1),
    Sketcher.Constraint("Tangent", 6, 2, 7, 2),
    Sketcher.Constraint("Tangent", 7, 1, 0, 1),
    Sketcher.Constraint("Horizontal", 0),
    Sketcher.Constraint("Vertical", 2),
    Sketcher.Constraint("Horizontal", 4),
    Sketcher.Constraint("Vertical", 6),
    Sketcher.Constraint("Equal", 1, 3),
    Sketcher.Constraint("Equal", 3, 5),
    Sketcher.Constraint("Equal", 5, 7),
    Sketcher.Constraint("Radius", 1, 5.0),
    Sketcher.Constraint("DistanceX", 0, 1, 0, 2, 70.0),
    Sketcher.Constraint("DistanceY", 2, 2, 2, 1, 90.0),
    Sketcher.Constraint("DistanceX", -1, 1, 1, 3, 35.0),
    Sketcher.Constraint("DistanceY", -1, 1, 1, 3, 40.9),
])
sketch11.setExpression("Constraints[15]", "Params.sketch11_radius")
sketch11.setExpression("Constraints[16]", "Params.sketch11_width")
sketch11.setExpression("Constraints[17]", "Params.sketch11_height")
pad10 = doc.addObject("PartDesign::Pad", "Pad009")
body3.addObject(pad10)
pad10.Profile = sketch11
pad10.setExpression("Length", "Params.pad10_length")

# Sketch on XZ plane
sketch12 = doc.addObject("Sketcher::SketchObject", "Sketch011")
body3.addObject(sketch12)
sketch12.AttachmentSupport = (doc.getObject("XZ_Plane002"), [""])
sketch12.MapMode = "FlatFace"
sketch12.AttachmentOffset = App.Placement(V(0, 0, -43), App.Rotation())
sketch12.addGeometry([
    Part.LineSegment(V(-18, -46.5, 0), V(-18, -43.5, 0)),  # 0
    Part.LineSegment(V(-18, -43.5, 0), V(18, -43.5, 0)),  # 1
    Part.LineSegment(V(18, -43.5, 0), V(18, -46.5, 0)),  # 2
    Part.LineSegment(V(18, -46.5, 0), V(-18, -46.5, 0)),  # 3
    Part.LineSegment(V(-13, 43.5, 0), V(-13, 46.5, 0)),  # 4
    Part.LineSegment(V(-13, 46.5, 0), V(13, 46.5, 0)),  # 5
    Part.LineSegment(V(13, 46.5, 0), V(13, 43.5, 0)),  # 6
    Part.LineSegment(V(13, 43.5, 0), V(-13, 43.5, 0)),  # 7
    Part.LineSegment(V(-30.8, -6, 0), V(-31.5, -21, 0)),  # 8
    Part.LineSegment(V(-31.5, -21, 0), V(-31.5, -31, 0)),  # 9
    Part.LineSegment(V(-31.5, -31, 0), V(-34.5, -31, 0)),  # 10
    Part.LineSegment(V(-34.5, -31, 0), V(-34.5, -20.9, 0)),  # 11
    Part.LineSegment(V(-34.5, -20.9, 0), V(-33.8, -5.9, 0)),  # 12
    Part.LineSegment(V(-33.8, -5.9, 0), V(-30.8, -6, 0)),  # 13
    Part.LineSegment(V(31.5, -31, 0), V(31.5, -21, 0)),  # 14
    Part.LineSegment(V(31.5, -21, 0), V(30.8, -6, 0)),  # 15
    Part.LineSegment(V(30.8, -6, 0), V(33.8, -5.9, 0)),  # 16
    Part.LineSegment(V(33.8, -5.9, 0), V(34.5, -20.9, 0)),  # 17
    Part.LineSegment(V(34.5, -20.9, 0), V(34.5, -31, 0)),  # 18
    Part.LineSegment(V(34.5, -31, 0), V(31.5, -31, 0)),  # 19
], False)
sketch12.addConstraint([
    Sketcher.Constraint("Coincident", 0, 2, 1, 1),
    Sketcher.Constraint("Coincident", 1, 2, 2, 1),
    Sketcher.Constraint("Coincident", 2, 2, 3, 1),
    Sketcher.Constraint("Coincident", 3, 2, 0, 1),
    Sketcher.Constraint("Coincident", 4, 2, 5, 1),
    Sketcher.Constraint("Coincident", 5, 2, 6, 1),
    Sketcher.Constraint("Coincident", 6, 2, 7, 1),
    Sketcher.Constraint("Coincident", 7, 2, 4, 1),
    Sketcher.Constraint("Coincident", 8, 2, 9, 1),
    Sketcher.Constraint("Coincident", 9, 2, 10, 1),
    Sketcher.Constraint("Coincident", 10, 2, 11, 1),
    Sketcher.Constraint("Coincident", 11, 2, 12, 1),
    Sketcher.Constraint("Coincident", 12, 2, 13, 1),
    Sketcher.Constraint("Coincident", 13, 2, 8, 1),
    Sketcher.Constraint("Coincident", 14, 2, 15, 1),
    Sketcher.Constraint("Coincident", 15, 2, 16, 1),
    Sketcher.Constraint("Coincident", 16, 2, 17, 1),
    Sketcher.Constraint("Coincident", 17, 2, 18, 1),
    Sketcher.Constraint("Coincident", 18, 2, 19, 1),
    Sketcher.Constraint("Coincident", 19, 2, 14, 1),
    Sketcher.Constraint("Vertical", 0),
    Sketcher.Constraint("Horizontal", 1),
    Sketcher.Constraint("Vertical", 2),
    Sketcher.Constraint("Horizontal", 3),
    Sketcher.Constraint("Vertical", 4),
    Sketcher.Constraint("Horizontal", 5),
    Sketcher.Constraint("Vertical", 6),
    Sketcher.Constraint("Horizontal", 7),
    Sketcher.Constraint("Vertical", 9),
    Sketcher.Constraint("Horizontal", 10),
    Sketcher.Constraint("Vertical", 11),
    Sketcher.Constraint("Vertical", 14),
    Sketcher.Constraint("Vertical", 18),
    Sketcher.Constraint("Horizontal", 19),
    Sketcher.Constraint("Symmetric", 8, 2, 14, 2, -2),
    Sketcher.Constraint("Symmetric", 13, 2, 15, 2, -2),
    Sketcher.Constraint("Symmetric", 12, 2, 16, 2, -2),
    Sketcher.Constraint("Symmetric", 11, 2, 17, 2, -2),
    Sketcher.Constraint("Parallel", 8, 12),
    Sketcher.Constraint("Perpendicular", 12, 13),
    Sketcher.Constraint("Horizontal", 10, 2, 18, 2),
    Sketcher.Constraint("Equal", 19, 0),
    Sketcher.Constraint("Equal", 2, 4),
    Sketcher.Constraint("DistanceX", 1, 1, 1, 2, 36.0),
    Sketcher.Constraint("DistanceX", 5, 1, 5, 2, 26.0),
    Sketcher.Constraint("DistanceX", 10, 2, 10, 1, 3.0),
    Sketcher.Constraint("DistanceY", 9, 2, 9, 1, 10.0),
    Sketcher.Constraint("Distance", 8, 15.0),
    Sketcher.Constraint("Distance", 13, 3.0),
    Sketcher.Constraint("DistanceX", 0, 2, -1, 1, 18.0),
    Sketcher.Constraint("DistanceX", 4, 2, -1, 1, 13.0),
    Sketcher.Constraint("Angle", 8, Q("-92.5 deg")),
    Sketcher.Constraint("DistanceY", 0, 2, 4, 2, 90.0),
    Sketcher.Constraint("DistanceX", 8, 2, 14, 2, 63.0),
    Sketcher.Constraint("DistanceY", 0, 2, -1, 1, 43.5),
    Sketcher.Constraint("DistanceY", 8, 2, -1, 1, 21.01091),
])
sketch12.setExpression("Constraints[43]", "Params.sketch12_width")
sketch12.setExpression("Constraints[44]", "Params.sketch12_width2")
sketch12.setExpression("Constraints[45]", "Params.sketch12_width3")
sketch12.setExpression("Constraints[46]", "Params.sketch12_height")
sketch12.setExpression("Constraints[47]", "Params.sketch12_length")
pad11 = doc.addObject("PartDesign::Pad", "Pad010")
body3.addObject(pad11)
pad11.Profile = sketch12
pad11.setExpression("Length", "Params.pad11_length")

doc.recompute()
